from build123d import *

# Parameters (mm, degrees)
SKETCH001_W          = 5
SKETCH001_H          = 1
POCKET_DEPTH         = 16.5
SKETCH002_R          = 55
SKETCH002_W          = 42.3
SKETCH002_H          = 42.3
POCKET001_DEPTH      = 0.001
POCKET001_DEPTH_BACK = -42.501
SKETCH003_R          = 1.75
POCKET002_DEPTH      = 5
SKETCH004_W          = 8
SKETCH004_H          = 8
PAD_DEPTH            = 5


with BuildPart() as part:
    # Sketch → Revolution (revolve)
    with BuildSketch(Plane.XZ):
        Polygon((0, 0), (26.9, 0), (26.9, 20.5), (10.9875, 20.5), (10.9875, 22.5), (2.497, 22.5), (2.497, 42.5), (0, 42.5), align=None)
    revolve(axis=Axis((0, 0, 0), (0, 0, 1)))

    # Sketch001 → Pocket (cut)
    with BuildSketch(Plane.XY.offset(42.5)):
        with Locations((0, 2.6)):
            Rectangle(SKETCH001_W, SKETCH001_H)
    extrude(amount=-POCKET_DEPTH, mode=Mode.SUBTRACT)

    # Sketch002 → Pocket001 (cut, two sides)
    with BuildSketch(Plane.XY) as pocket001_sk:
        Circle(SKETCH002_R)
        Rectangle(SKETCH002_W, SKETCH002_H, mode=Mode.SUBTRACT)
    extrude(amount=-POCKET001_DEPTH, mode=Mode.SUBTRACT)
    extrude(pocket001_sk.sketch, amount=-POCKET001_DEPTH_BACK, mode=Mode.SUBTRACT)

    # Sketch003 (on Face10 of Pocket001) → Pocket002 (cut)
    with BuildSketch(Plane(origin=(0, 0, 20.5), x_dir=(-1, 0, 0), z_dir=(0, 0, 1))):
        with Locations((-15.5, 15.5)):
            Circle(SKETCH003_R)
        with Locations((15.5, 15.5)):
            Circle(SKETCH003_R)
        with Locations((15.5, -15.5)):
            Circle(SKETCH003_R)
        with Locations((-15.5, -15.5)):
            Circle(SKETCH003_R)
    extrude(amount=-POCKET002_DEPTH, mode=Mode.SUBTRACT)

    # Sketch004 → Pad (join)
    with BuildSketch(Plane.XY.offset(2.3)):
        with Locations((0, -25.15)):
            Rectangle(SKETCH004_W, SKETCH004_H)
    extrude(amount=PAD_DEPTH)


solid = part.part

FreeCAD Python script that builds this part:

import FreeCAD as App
import Part
import Sketcher
Q = App.Units.Quantity

doc = App.newDocument("Part")
body = doc.addObject("PartDesign::Body", "Body")

# Sketch on XZ plane
sketch1 = body.newObject("Sketcher::SketchObject", "Sketch")
sketch1.AttachmentSupport = (doc.getObject("XZ_Plane"), [""])
sketch1.MapMode = "FlatFace"
sketch1.addGeometry([
    Part.LineSegment(App.Vector(0, 0, 0), App.Vector(26.9, 0, 0)),  # 0
    Part.LineSegment(App.Vector(26.9, 0, 0), App.Vector(26.9, 20.5, 0)),  # 1
    Part.LineSegment(App.Vector(26.9, 20.5, 0), App.Vector(11, 20.5, 0)),  # 2
    Part.LineSegment(App.Vector(11, 20.5, 0), App.Vector(11, 22.5, 0)),  # 3
    Part.LineSegment(App.Vector(11, 22.5, 0), App.Vector(2.5, 22.5, 0)),  # 4
    Part.LineSegment(App.Vector(2.5, 22.5, 0), App.Vector(2.5, 42.5, 0)),  # 5
    Part.LineSegment(App.Vector(2.5, 42.5, 0), App.Vector(0, 42.5, 0)),  # 6
    Part.LineSegment(App.Vector(0, 42.5, 0), App.Vector(0, 0, 0)),  # 7
], False)
sketch1.addConstraint([
    Sketcher.Constraint("Coincident", 0, 2, 1, 1),
    Sketcher.Constraint("Coincident", 1, 2, 2, 1),
    Sketcher.Constraint("Coincident", 2, 2, 3, 1),
    Sketcher.Constraint("Coincident", 3, 2, 4, 1),
    Sketcher.Constraint("Coincident", 4, 2, 5, 1),
    Sketcher.Constraint("Coincident", 5, 2, 6, 1),
    Sketcher.Constraint("Coincident", 6, 2, 7, 1),
    Sketcher.Constraint("Coincident", 7, 2, 0, 1),
    Sketcher.Constraint("Horizontal", 0),
    Sketcher.Constraint("Vertical", 1),
    Sketcher.Constraint("Horizontal", 2),
    Sketcher.Constraint("Vertical", 3),
    Sketcher.Constraint("Horizontal", 4),
    Sketcher.Constraint("Vertical", 5),
    Sketcher.Constraint("Horizontal", 6),
    Sketcher.Constraint("Vertical", 7),
    Sketcher.Constraint("Coincident", 7, 2, -1, 1),
    Sketcher.Constraint("DistanceY", 3, 1, 3, 2, Q("2 mm")),
    Sketcher.Constraint("DistanceY", 5, 1, 5, 2, Q("20 mm")),
    Sketcher.Constraint("DistanceX", 0, 1, 0, 2, Q("26.9 mm")),
    Sketcher.Constraint("DistanceY", 1, 1, 1, 2, Q("20.5 mm")),
    Sketcher.Constraint("DistanceX", 6, 2, 6, 1, Q("2.497 mm")),
    Sketcher.Constraint("DistanceX", 2, 2, 2, 1, Q("15.9125 mm")),
])
revolution = body.newObject("PartDesign::Revolution", "Revolution")
revolution.Profile = sketch1
revolution.ReferenceAxis = (sketch1, ["V_Axis"])
revolution.Angle = 360

# Sketch on XY plane
sketch2 = body.newObject("Sketcher::SketchObject", "Sketch001")
sketch2.AttachmentSupport = (doc.getObject("XY_Plane"), [""])
sketch2.MapMode = "FlatFace"
sketch2.AttachmentOffset = App.Placement(App.Vector(0, 0, 42.5), App.Rotation())
sketch2.addGeometry([
    Part.LineSegment(App.Vector(-2.5, 3.1, 0), App.Vector(-2.5, 2.1, 0)),
    Part.LineSegment(App.Vector(-2.5, 2.1, 0), App.Vector(2.5, 2.1, 0)),
    Part.LineSegment(App.Vector(2.5, 2.1, 0), App.Vector(2.5, 3.1, 0)),
    Part.LineSegment(App.Vector(2.5, 3.1, 0), App.Vector(-2.5, 3.1, 0)),
], False)
sketch2.addConstraint([
    Sketcher.Constraint("Coincident", 0, 2, 1, 1),
    Sketcher.Constraint("Coincident", 1, 2, 2, 1),
    Sketcher.Constraint("Coincident", 2, 2, 3, 1),
    Sketcher.Constraint("Coincident", 3, 2, 0, 1),
    Sketcher.Constraint("Vertical", 0),
    Sketcher.Constraint("Horizontal", 1),
    Sketcher.Constraint("Vertical", 2),
    Sketcher.Constraint("Horizontal", 3),
    Sketcher.Constraint("DistanceX", 1, 1, 1, 2, Q("5 mm")),
    Sketcher.Constraint("DistanceY", 0, 2, 0, 1, Q("1 mm")),
    Sketcher.Constraint("DistanceX", 0, 2, -1, 1, Q("2.5 mm")),
    Sketcher.Constraint("DistanceY", -1, 1, 0, 2, Q("2.1 mm")),
])
pocket1 = body.newObject("PartDesign::Pocket", "Pocket")
pocket1.Profile = sketch2
pocket1.Length = 16.5

# Sketch on XY plane
sketch3 = body.newObject("Sketcher::SketchObject", "Sketch002")
sketch3.AttachmentSupport = (doc.getObject("XY_Plane"), [""])
sketch3.MapMode = "FlatFace"
sketch3.addGeometry([
    Part.Circle(App.Vector(0, 0, 0), App.Vector(0, 0, 1), 55),  # 0
    Part.LineSegment(App.Vector(21, -21, 0), App.Vector(-21, -21, 0)),  # 1
    Part.LineSegment(App.Vector(-21, -21, 0), App.Vector(-21, 21, 0)),  # 2
    Part.LineSegment(App.Vector(-21, 21, 0), App.Vector(21, 21, 0)),  # 3
    Part.LineSegment(App.Vector(21, 21, 0), App.Vector(21, -21, 0)),  # 4
], False)
sketch3.addConstraint([
    Sketcher.Constraint("Coincident", 1, 2, 2, 1),
    Sketcher.Constraint("Coincident", 2, 2, 3, 1),
    Sketcher.Constraint("Coincident", 3, 2, 4, 1),
    Sketcher.Constraint("Coincident", 4, 2, 1, 1),
    Sketcher.Constraint("Horizontal", 1),
    Sketcher.Constraint("Vertical", 2),
    Sketcher.Constraint("Horizontal", 3),
    Sketcher.Constraint("Vertical", 4),
    Sketcher.Constraint("Coincident", 0, 3, -1, 1),
    Sketcher.Constraint("Symmetric", 1, 2, 3, 2, -1, 1),
    Sketcher.Constraint("Equal", 3, 2),
    Sketcher.Constraint("Diameter", 0, Q("110 mm")),
    Sketcher.Constraint("DistanceX", 1, 2, 1, 1, Q("42.3 mm")),
])
pocket2 = body.newObject("PartDesign::Pocket", "Pocket001")
pocket2.Profile = sketch3
pocket2.Type = "ThroughAll"
pocket2.Midplane = True

# Sketch on XY plane
sketch4 = body.newObject("Sketcher::SketchObject", "Sketch003")
sketch4.AttachmentSupport = (doc.getObject("XY_Plane"), [""])
sketch4.MapMode = "FlatFace"
sketch4.AttachmentOffset = App.Placement(App.Vector(0, 0, 20.5), App.Rotation())
sketch4.addGeometry([
    Part.Circle(App.Vector(15.5, -15.5, 0), App.Vector(0, 0, 1), 1.8),
    Part.Circle(App.Vector(-15.5, -15.5, 0), App.Vector(0, 0, 1), 1.8),
    Part.Circle(App.Vector(-15.5, 15.5, 0), App.Vector(0, 0, 1), 1.8),
    Part.Circle(App.Vector(15.5, 15.5, 0), App.Vector(0, 0, 1), 1.8),
], False)
sketch4.addConstraint([
    Sketcher.Constraint("Equal", 0, 1),
    Sketcher.Constraint("Equal", 1, 2),
    Sketcher.Constraint("Equal", 2, 3),
    Sketcher.Constraint("Symmetric", 0, 3, 2, 3, -1, 1),
    Sketcher.Constraint("Symmetric", 1, 3, 3, 3, -1, 1),
    Sketcher.Constraint("Symmetric", 0, 3, 1, 3, -2),
    Sketcher.Constraint("Diameter", 0, Q("3.5 mm")),
    Sketcher.Constraint("DistanceX", 1, 3, 0, 3, Q("31 mm")),
    Sketcher.Constraint("DistanceY", 1, 3, 2, 3, Q("31 mm")),
])
pocket3 = body.newObject("PartDesign::Pocket", "Pocket002")
pocket3.Profile = sketch4
pocket3.Length = 5

# Sketch on XY plane
sketch5 = body.newObject("Sketcher::SketchObject", "Sketch004")
sketch5.AttachmentSupport = (doc.getObject("XY_Plane"), [""])
sketch5.MapMode = "FlatFace"
sketch5.AttachmentOffset = App.Placement(App.Vector(0, 0, 2.3), App.Rotation())
sketch5.addGeometry([
    Part.LineSegment(App.Vector(-4, -21, 0), App.Vector(-4, -29, 0)),
    Part.LineSegment(App.Vector(-4, -29, 0), App.Vector(4, -29, 0)),
    Part.LineSegment(App.Vector(4, -29, 0), App.Vector(4, -21, 0)),
    Part.LineSegment(App.Vector(4, -21, 0), App.Vector(-4, -21, 0)),
], False)
sketch5.addConstraint([
    Sketcher.Constraint("Coincident", 0, 2, 1, 1),
    Sketcher.Constraint("Coincident", 1, 2, 2, 1),
    Sketcher.Constraint("Coincident", 2, 2, 3, 1),
    Sketcher.Constraint("Coincident", 3, 2, 0, 1),
    Sketcher.Constraint("Vertical", 0),
    Sketcher.Constraint("Horizontal", 1),
    Sketcher.Constraint("Vertical", 2),
    Sketcher.Constraint("Horizontal", 3),
    Sketcher.Constraint("Equal", 3, 0),
    Sketcher.Constraint("DistanceX", 1, 1, 1, 2, Q("8 mm")),
    Sketcher.Constraint("DistanceX", 0, 2, -1, 1, Q("4 mm")),
    Sketcher.Constraint("DistanceY", 0, 2, -1, 1, Q("29.15 mm")),
])
pad1 = body.newObject("PartDesign::Pad", "Pad")
pad1.Profile = sketch5
pad1.Length = 5

doc.recompute()
